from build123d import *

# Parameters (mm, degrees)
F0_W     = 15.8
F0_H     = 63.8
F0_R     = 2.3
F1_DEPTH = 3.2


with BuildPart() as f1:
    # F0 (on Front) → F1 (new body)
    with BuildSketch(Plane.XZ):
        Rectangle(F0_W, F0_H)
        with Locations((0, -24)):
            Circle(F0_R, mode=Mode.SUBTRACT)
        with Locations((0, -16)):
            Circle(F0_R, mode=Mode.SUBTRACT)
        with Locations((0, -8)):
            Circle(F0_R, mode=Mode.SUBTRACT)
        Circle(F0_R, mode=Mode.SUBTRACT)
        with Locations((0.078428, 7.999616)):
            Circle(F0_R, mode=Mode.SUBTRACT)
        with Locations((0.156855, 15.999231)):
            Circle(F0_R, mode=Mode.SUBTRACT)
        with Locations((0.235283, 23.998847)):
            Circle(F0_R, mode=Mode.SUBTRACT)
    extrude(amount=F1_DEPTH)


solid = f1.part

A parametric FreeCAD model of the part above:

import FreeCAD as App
import Part
import Sketcher
from FreeCAD import Vector
Q = App.Units.Quantity


def add_polygon(sketch, points):
    """Adds a closed chain of lines whose ends are joined by coincident constraints."""
    first, n = sketch.GeometryCount, len(points)
    for a, b in zip(points, points[1:] + points[:1]):
        sketch.addGeometry(Part.LineSegment(App.Vector(*a, 0), App.Vector(*b, 0)), False)
    for i in range(n):
        sketch.addConstraint(Sketcher.Constraint("Coincident", first + i, 2, first + (i + 1) % n, 1))

doc = App.newDocument("Part")
body = doc.addObject("PartDesign::Body", "Body")

# Sketch on XZ plane
sketch1 = body.newObject("Sketcher::SketchObject", "Sketch")
sketch1.AttachmentSupport = (doc.getObject("XZ_Plane"), [""])
sketch1.MapMode = "FlatFace"
add_polygon(sketch1, [(-7.9, 31.9), (-7.9, -31.9), (7.9, -31.9), (7.9, 31.9)])  # lines 0-3
sketch1.addGeometry(Part.Circle(Vector(0, -24, 0), Vector(0, 0, 1), 2.3), False)  # 4
sketch1.addGeometry(Part.Circle(Vector(0, -16, 0), Vector(0, 0, 1), 2.3), False)  # 5
sketch1.addGeometry(Part.Circle(Vector(0, -8, 0), Vector(0, 0, 1), 2.3), False)  # 6
sketch1.addGeometry(Part.Circle(Vector(0, 0, 0), Vector(0, 0, 1), 2.3), False)  # 7
sketch1.addGeometry(Part.Circle(Vector(0.078428, 7.999616, 0), Vector(0, 0, 1), 2.3), False)  # 8
sketch1.addGeometry(Part.Circle(Vector(0.156855, 15.999231, 0), Vector(0, 0, 1), 2.3), False)  # 9
sketch1.addGeometry(Part.Circle(Vector(0.235283, 23.998847, 0), Vector(0, 0, 1), 2.3), False)  # 10
sketch1.addConstraint([
    Sketcher.Constraint("Vertical", 0),
    Sketcher.Constraint("Horizontal", 1),
    Sketcher.Constraint("Vertical", 2),
    Sketcher.Constraint("Horizontal", 3),
    Sketcher.Constraint("Coincident", 7, 3, -1, 1),
    Sketcher.Constraint("Equal", 4, 5),
    Sketcher.Constraint("Equal", 5, 6),
    Sketcher.Constraint("Equal", 6, 7),
    Sketcher.Constraint("Equal", 7, 8),
    Sketcher.Constraint("Equal", 8, 9),
    Sketcher.Constraint("Equal", 9, 10),
    Sketcher.Constraint("Symmetric", 0, 2, 2, 2, -1, 1),
    Sketcher.Constraint("PointOnObject", 4, 3, -2),
    Sketcher.Constraint("PointOnObject", 5, 3, -2),
    Sketcher.Constraint("PointOnObject", 6, 3, -2),
    Sketcher.Constraint("Diameter", 4, Q("4.6 mm")),
    Sketcher.Constraint("DistanceX", 1, 1, 1, 2, Q("15.8 mm")),
    Sketcher.Constraint("DistanceY", 0, 2, 0, 1, Q("63.8 mm")),
    Sketcher.Constraint("DistanceY", 4, 3, -1, 1, Q("24 mm")),
    Sketcher.Constraint("DistanceY", 5, 3, -1, 1, Q("16 mm")),
    Sketcher.Constraint("DistanceY", 6, 3, -1, 1, Q("8 mm")),
    Sketcher.Constraint("DistanceY", -1, 1, 9, 3, Q("15.999231 mm")),
    Sketcher.Constraint("DistanceY", 8, 3, 10, 3, Q("15.999231 mm")),
    Sketcher.Constraint("DistanceX", -1, 1, 8, 3, Q("0.078428 mm")),
    Sketcher.Constraint("DistanceY", -1, 1, 8, 3, Q("7.999616 mm")),
    Sketcher.Constraint("DistanceX", -1, 1, 9, 3, Q("0.156855 mm")),
    Sketcher.Constraint("DistanceX", -1, 1, 10, 3, Q("0.235283 mm")),
])
pad1 = body.newObject("PartDesign::Pad", "Pad")
pad1.Profile = sketch1
pad1.Length = 3.2

doc.recompute()
